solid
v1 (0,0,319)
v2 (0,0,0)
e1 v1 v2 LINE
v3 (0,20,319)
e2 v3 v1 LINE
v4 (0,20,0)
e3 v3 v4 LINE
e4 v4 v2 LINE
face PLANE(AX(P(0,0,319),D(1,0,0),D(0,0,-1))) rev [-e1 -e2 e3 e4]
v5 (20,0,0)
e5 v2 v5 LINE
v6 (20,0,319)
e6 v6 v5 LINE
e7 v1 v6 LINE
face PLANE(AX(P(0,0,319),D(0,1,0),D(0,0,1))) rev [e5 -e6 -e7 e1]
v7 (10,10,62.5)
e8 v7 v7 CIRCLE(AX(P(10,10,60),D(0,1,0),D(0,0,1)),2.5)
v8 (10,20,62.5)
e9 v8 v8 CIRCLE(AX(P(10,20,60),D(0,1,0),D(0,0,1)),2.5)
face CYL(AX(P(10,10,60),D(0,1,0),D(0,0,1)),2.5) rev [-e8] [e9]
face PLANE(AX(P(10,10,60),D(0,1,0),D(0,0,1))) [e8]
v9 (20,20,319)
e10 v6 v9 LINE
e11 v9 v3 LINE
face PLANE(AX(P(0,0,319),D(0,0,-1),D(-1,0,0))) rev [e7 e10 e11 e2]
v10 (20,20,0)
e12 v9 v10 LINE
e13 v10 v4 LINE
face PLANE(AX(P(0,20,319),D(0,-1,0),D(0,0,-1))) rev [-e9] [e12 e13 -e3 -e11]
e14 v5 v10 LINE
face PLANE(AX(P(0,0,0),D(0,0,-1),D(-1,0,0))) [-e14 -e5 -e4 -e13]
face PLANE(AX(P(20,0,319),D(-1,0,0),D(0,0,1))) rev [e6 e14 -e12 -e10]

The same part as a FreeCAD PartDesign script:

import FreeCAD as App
import Part
import Sketcher

V = App.Vector
Q = App.Units.Quantity

doc = App.newDocument("Part")
body = doc.addObject("PartDesign::Body", "Body")

# Sketch on XY plane
sketch1 = body.newObject("Sketcher::SketchObject", "Sketch")
sketch1.AttachmentSupport = (doc.getObject("XY_Plane"), [""])
sketch1.MapMode = "FlatFace"
sketch1.addGeometry([
    Part.LineSegment(V(0, 20, 0), V(0, 0, 0)),
    Part.LineSegment(V(0, 0, 0), V(20, 0, 0)),
    Part.LineSegment(V(20, 0, 0), V(20, 20, 0)),
    Part.LineSegment(V(20, 20, 0), V(0, 20, 0)),
], False)
sketch1.addConstraint([
    Sketcher.Constraint("Coincident", 0, 2, 1, 1),
    Sketcher.Constraint("Coincident", 1, 2, 2, 1),
    Sketcher.Constraint("Coincident", 2, 2, 3, 1),
    Sketcher.Constraint("Coincident", 3, 2, 0, 1),
    Sketcher.Constraint("Vertical", 0),
    Sketcher.Constraint("Horizontal", 1),
    Sketcher.Constraint("Vertical", 2),
    Sketcher.Constraint("Horizontal", 3),
    Sketcher.Constraint("Coincident", 0, 2, -1, 1),
    Sketcher.Constraint("Equal", 3, 0),
    Sketcher.Constraint("DistanceX", 1, 1, 1, 2, Q("20 mm")),
])
pad1 = body.newObject("PartDesign::Pad", "Pad")
pad1.Profile = sketch1
pad1.Length = 319

# Sketch on XZ plane
sketch2 = body.newObject("Sketcher::SketchObject", "Sketch001")
sketch2.AttachmentSupport = (doc.getObject("XZ_Plane"), [""])
sketch2.MapMode = "FlatFace"
sketch2.AttachmentOffset = App.Placement(V(0, 0, -20), App.Rotation())
sketch2.addGeometry(Part.Circle(V(10, 60, 0), V(0, 0, 1), 2.5), False)
sketch2.addConstraint([
    Sketcher.Constraint("Diameter", 0, Q("5 mm")),
    Sketcher.Constraint("DistanceX", -1, 1, 0, 3, Q("10 mm")),
    Sketcher.Constraint("DistanceY", -1, 1, 0, 3, Q("60 mm")),
])
pocket1 = body.newObject("PartDesign::Pocket", "Pocket")
pocket1.Profile = sketch2
pocket1.Length = 10
pocket1.Reversed = True

doc.recompute()
